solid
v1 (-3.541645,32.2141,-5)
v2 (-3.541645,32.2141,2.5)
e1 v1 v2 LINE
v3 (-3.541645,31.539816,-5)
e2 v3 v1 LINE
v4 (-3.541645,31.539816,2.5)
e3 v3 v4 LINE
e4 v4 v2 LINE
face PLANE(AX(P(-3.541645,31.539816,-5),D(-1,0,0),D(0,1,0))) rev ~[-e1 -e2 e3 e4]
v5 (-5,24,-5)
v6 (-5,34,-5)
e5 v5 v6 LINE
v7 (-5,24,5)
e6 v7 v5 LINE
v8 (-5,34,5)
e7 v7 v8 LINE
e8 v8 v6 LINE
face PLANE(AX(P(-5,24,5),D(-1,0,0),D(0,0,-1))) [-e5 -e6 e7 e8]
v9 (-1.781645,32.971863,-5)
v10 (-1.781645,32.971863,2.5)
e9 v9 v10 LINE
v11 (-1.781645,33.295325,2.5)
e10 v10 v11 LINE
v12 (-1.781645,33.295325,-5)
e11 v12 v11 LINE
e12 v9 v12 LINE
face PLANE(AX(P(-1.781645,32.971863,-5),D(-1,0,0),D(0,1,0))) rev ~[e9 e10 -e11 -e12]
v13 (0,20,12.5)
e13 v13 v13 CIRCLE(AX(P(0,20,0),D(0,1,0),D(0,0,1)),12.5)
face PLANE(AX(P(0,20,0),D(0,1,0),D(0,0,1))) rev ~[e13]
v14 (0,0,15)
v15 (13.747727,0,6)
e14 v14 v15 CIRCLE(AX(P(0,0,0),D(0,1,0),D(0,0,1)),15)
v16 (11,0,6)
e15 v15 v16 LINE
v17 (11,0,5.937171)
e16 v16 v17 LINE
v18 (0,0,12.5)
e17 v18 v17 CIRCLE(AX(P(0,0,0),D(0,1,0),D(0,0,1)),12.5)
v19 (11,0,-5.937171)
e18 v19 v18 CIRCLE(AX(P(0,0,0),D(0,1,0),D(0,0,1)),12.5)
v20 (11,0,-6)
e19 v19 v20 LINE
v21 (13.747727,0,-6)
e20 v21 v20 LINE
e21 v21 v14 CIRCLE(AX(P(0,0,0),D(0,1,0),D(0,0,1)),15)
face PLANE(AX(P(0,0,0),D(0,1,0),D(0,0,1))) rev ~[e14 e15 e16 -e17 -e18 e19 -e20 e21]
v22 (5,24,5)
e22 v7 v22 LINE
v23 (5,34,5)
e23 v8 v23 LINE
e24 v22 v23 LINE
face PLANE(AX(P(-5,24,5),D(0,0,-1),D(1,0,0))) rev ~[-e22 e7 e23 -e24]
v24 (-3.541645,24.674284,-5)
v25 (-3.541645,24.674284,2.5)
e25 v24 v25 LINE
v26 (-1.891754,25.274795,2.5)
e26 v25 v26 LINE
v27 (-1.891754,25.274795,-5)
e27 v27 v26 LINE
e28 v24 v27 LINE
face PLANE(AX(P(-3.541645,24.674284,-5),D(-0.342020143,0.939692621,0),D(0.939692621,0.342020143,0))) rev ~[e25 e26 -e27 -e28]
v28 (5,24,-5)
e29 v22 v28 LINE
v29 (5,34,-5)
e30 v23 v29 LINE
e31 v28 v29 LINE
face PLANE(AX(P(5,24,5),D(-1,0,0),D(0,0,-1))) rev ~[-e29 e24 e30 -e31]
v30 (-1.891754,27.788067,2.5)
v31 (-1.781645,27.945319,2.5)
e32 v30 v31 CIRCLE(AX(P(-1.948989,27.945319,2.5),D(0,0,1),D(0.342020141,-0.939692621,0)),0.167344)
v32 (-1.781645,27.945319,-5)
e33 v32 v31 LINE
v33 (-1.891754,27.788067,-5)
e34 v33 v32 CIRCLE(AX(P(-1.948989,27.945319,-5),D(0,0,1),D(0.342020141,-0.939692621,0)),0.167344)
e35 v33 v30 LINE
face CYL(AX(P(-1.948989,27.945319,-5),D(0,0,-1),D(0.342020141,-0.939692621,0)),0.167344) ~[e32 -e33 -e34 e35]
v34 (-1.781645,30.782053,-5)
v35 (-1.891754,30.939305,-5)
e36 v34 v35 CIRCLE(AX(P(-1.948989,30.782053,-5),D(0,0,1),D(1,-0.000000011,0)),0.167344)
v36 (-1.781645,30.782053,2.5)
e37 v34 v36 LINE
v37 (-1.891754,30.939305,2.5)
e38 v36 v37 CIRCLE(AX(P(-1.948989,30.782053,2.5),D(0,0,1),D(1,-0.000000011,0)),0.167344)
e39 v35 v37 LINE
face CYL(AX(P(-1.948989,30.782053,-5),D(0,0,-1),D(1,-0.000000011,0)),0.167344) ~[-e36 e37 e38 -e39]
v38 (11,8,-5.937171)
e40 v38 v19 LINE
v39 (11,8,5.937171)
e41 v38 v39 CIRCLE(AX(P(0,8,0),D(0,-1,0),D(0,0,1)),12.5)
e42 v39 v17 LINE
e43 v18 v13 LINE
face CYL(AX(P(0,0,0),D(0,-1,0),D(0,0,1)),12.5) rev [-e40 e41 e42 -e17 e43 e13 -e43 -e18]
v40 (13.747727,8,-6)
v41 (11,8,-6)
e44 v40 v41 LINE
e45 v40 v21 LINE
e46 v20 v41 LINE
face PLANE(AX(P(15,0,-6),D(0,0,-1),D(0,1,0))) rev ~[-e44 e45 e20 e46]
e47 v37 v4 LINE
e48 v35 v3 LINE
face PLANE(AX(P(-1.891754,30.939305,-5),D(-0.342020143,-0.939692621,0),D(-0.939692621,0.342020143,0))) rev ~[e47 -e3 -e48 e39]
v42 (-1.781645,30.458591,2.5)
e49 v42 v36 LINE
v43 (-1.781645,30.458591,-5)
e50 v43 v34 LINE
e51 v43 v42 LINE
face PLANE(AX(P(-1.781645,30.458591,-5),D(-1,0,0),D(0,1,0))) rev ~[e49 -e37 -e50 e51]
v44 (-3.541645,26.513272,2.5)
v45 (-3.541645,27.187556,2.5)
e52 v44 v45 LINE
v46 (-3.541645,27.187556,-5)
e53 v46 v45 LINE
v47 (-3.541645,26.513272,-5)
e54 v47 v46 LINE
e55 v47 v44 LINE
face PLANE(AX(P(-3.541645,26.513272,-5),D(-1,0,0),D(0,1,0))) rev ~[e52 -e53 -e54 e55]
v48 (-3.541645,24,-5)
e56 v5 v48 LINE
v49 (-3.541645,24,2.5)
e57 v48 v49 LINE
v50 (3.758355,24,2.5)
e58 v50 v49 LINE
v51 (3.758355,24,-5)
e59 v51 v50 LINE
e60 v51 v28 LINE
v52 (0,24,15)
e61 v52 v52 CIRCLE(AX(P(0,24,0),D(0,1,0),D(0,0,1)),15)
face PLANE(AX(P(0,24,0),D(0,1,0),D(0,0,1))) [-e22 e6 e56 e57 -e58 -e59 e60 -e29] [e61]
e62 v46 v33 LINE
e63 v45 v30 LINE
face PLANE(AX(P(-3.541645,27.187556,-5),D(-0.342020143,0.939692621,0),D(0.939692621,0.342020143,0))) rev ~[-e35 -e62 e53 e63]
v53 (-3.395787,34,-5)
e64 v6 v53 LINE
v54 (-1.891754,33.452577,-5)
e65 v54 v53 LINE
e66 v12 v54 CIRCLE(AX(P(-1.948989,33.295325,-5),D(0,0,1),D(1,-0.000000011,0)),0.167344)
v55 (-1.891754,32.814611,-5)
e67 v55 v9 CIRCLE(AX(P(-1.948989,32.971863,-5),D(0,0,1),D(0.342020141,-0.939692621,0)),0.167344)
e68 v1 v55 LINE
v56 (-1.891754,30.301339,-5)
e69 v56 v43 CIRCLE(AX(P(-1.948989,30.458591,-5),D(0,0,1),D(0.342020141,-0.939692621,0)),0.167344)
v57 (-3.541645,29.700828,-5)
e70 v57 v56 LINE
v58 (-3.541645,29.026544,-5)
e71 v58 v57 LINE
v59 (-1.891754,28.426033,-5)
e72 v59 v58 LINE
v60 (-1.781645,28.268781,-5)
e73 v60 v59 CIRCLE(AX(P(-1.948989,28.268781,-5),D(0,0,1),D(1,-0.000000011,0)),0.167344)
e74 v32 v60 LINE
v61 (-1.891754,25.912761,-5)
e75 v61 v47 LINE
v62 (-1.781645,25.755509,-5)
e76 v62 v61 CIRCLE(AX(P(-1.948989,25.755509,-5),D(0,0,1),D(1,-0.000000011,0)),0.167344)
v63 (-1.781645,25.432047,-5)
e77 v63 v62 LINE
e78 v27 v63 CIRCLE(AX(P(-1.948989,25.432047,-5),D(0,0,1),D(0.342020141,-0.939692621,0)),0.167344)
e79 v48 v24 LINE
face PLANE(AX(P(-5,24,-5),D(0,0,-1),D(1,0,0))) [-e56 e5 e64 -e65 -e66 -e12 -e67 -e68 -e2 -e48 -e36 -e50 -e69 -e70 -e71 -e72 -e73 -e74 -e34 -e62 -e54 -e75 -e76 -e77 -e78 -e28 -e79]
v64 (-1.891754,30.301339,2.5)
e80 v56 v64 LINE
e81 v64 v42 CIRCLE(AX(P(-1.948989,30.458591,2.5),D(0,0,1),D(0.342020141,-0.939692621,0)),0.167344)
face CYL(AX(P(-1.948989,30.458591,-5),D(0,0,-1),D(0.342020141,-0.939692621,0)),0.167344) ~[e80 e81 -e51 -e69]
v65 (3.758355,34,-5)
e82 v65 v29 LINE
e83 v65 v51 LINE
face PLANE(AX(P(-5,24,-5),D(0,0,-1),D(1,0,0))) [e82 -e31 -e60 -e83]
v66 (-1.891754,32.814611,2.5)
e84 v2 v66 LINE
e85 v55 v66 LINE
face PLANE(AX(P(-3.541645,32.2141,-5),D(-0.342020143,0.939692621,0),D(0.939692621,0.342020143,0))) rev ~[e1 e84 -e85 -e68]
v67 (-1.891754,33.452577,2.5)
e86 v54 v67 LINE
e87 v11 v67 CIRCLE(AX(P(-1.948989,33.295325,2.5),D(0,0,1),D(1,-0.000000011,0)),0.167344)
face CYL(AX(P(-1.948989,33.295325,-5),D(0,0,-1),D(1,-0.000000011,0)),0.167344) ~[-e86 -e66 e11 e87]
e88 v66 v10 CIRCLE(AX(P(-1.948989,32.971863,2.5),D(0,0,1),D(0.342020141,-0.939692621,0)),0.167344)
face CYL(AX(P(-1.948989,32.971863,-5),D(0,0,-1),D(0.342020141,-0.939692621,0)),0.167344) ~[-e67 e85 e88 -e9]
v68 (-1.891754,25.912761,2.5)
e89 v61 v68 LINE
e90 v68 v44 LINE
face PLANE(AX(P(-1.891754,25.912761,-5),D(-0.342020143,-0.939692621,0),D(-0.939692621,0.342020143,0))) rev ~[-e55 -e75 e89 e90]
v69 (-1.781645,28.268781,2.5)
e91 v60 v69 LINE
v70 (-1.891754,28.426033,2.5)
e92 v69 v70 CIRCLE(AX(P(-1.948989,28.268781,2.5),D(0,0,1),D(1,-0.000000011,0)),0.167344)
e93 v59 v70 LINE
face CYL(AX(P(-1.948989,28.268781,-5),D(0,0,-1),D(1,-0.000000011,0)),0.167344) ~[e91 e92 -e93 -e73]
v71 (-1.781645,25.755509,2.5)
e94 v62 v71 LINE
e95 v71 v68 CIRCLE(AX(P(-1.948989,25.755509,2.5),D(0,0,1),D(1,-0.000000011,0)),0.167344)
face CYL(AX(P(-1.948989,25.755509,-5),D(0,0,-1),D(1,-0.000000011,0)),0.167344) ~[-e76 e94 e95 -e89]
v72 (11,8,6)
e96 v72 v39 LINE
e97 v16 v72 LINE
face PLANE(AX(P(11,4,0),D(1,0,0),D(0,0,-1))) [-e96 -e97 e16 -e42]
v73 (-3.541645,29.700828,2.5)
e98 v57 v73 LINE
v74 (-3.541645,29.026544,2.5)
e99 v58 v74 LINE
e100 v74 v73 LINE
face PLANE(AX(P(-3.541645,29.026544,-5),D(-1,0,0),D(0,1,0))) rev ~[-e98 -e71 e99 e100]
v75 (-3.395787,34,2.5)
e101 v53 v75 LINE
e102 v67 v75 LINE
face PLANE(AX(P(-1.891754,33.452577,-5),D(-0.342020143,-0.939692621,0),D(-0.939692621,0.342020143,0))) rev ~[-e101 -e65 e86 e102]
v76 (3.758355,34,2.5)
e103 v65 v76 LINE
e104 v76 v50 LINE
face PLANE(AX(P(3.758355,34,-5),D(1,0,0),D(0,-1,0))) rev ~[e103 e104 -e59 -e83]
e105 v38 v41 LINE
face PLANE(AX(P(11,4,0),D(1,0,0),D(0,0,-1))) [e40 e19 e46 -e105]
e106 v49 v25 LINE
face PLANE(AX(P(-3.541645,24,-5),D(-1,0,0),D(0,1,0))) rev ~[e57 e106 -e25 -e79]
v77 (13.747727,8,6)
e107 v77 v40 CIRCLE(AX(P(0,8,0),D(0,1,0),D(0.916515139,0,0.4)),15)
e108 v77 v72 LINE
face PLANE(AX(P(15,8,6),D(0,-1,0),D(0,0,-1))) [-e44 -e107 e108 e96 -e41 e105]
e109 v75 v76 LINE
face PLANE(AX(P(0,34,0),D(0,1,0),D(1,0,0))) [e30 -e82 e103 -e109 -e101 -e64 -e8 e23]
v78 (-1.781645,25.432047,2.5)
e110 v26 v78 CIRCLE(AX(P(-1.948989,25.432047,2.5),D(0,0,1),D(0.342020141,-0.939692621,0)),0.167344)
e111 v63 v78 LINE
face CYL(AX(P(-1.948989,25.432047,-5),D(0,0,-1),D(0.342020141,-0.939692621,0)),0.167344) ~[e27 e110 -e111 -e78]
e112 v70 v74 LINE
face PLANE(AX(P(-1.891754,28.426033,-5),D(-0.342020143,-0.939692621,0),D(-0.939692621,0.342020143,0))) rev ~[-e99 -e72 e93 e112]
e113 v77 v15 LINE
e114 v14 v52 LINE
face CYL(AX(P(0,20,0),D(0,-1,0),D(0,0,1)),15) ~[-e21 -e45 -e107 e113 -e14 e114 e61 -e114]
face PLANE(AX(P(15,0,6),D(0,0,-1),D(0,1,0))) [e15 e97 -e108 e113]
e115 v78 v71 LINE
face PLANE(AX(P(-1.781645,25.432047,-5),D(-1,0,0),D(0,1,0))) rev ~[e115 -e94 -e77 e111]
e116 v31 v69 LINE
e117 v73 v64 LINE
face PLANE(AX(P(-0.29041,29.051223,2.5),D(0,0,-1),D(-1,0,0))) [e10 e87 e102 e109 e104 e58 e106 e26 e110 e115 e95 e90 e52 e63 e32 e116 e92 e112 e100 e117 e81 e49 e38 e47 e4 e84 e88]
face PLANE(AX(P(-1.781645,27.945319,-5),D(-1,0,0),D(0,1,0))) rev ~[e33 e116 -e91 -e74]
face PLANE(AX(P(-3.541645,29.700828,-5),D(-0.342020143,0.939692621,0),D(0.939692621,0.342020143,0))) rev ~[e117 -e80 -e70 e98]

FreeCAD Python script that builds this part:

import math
import FreeCAD as App
import Part
import Sketcher

V = App.Vector
Q = App.Units.Quantity

doc = App.newDocument("Part")
params = doc.addObject("Spreadsheet::Sheet", "Params")
for row, (alias, value) in enumerate([
    ("sketch1_diameter", "30 mm"),
    ("sketch1_diameter2", "25 mm"),
    ("pad1_length", "20 mm"),
    ("sketch2_diameter", "30 mm"),
    ("pad2_length", "4 mm"),
    ("sketch3_width", "8 mm"),
    ("sketch3_height", "12 mm"),
    ("pocket1_length", "4 mm"),
    ("sketch4_width", "10 mm"),
    ("pad3_length", "10 mm"),
    ("sketch5_height", "10 mm"),
    ("sketch5_width", "7.3 mm"),
    ("pocket2_length", "7.5 mm"),
], start=1):
    params.set(f"A{row}", alias)
    params.set(f"B{row}", "=" + value)
    params.setAlias(f"B{row}", alias)

body = doc.addObject("PartDesign::Body", "Body")

# Sketch on XZ plane
sketch1 = body.newObject("Sketcher::SketchObject", "Sketch")
sketch1.AttachmentSupport = (doc.getObject("XZ_Plane"), [""])
sketch1.MapMode = "FlatFace"
sketch1.addGeometry(Part.Circle(V(0, 0, 0), V(0, 0, 1), 15), False)
sketch1.addGeometry(Part.Circle(V(0, 0, 0), V(0, 0, 1), 12), False)
sketch1.addConstraint(Sketcher.Constraint("Coincident", 0, 3, -1, 1))
sketch1.addConstraint(Sketcher.Constraint("Coincident", 1, 3, -1, 1))
sketch1.addConstraint(Sketcher.Constraint("Diameter", 0, Q("30 mm")))
sketch1.addConstraint(Sketcher.Constraint("Diameter", 1, Q("25 mm")))
sketch1.setExpression("Constraints[2]", "Params.sketch1_diameter")
sketch1.setExpression("Constraints[3]", "Params.sketch1_diameter2")
pad1 = body.newObject("PartDesign::Pad", "Pad")
pad1.Profile = sketch1
pad1.setExpression("Length", "Params.pad1_length")
pad1.Reversed = True

# Sketch on XZ plane
sketch2 = body.newObject("Sketcher::SketchObject", "Sketch001")
sketch2.AttachmentSupport = (doc.getObject("XZ_Plane"), [""])
sketch2.MapMode = "FlatFace"
sketch2.AttachmentOffset = App.Placement(V(0, 0, -20), App.Rotation())
sketch2.addGeometry(Part.Circle(V(0, 0, 0), V(0, 0, 1), 15), False)
sketch2.addConstraint(Sketcher.Constraint("Coincident", 0, 3, -1, 1))
sketch2.addConstraint(Sketcher.Constraint("Diameter", 0, Q("30 mm")))
sketch2.setExpression("Constraints[1]", "Params.sketch2_diameter")
pad2 = body.newObject("PartDesign::Pad", "Pad001")
pad2.Profile = sketch2
pad2.setExpression("Length", "Params.pad2_length")
pad2.Reversed = True

# Sketch on YZ plane
sketch3 = body.newObject("Sketcher::SketchObject", "Sketch002")
sketch3.AttachmentSupport = (doc.getObject("YZ_Plane"), [""])
sketch3.MapMode = "FlatFace"
sketch3.AttachmentOffset = App.Placement(V(0, 0, 15), App.Rotation())
sketch3.addGeometry(Part.LineSegment(V(8, 6, 0), V(0, 6, 0)), False)
sketch3.addGeometry(Part.LineSegment(V(0, 6, 0), V(0, -6, 0)), False)
sketch3.addGeometry(Part.LineSegment(V(0, -6, 0), V(8, -6, 0)), False)
sketch3.addGeometry(Part.LineSegment(V(8, -6, 0), V(8, 6, 0)), False)
sketch3.addConstraint(Sketcher.Constraint("Coincident", 0, 2, 1, 1))
sketch3.addConstraint(Sketcher.Constraint("Coincident", 1, 2, 2, 1))
sketch3.addConstraint(Sketcher.Constraint("Coincident", 2, 2, 3, 1))
sketch3.addConstraint(Sketcher.Constraint("Coincident", 3, 2, 0, 1))
sketch3.addConstraint(Sketcher.Constraint("Horizontal", 0))
sketch3.addConstraint(Sketcher.Constraint("Vertical", 1))
sketch3.addConstraint(Sketcher.Constraint("Horizontal", 2))
sketch3.addConstraint(Sketcher.Constraint("Vertical", 3))
sketch3.addConstraint(Sketcher.Constraint("Symmetric", 0, 2, 1, 2, -1, 1))
sketch3.addConstraint(Sketcher.Constraint("DistanceX", 0, 2, 0, 1, Q("8 mm")))
sketch3.addConstraint(Sketcher.Constraint("DistanceY", 1, 2, 1, 1, Q("12 mm")))
sketch3.setExpression("Constraints[9]", "Params.sketch3_width")
sketch3.setExpression("Constraints[10]", "Params.sketch3_height")
pocket1 = body.newObject("PartDesign::Pocket", "Pocket")
pocket1.Profile = sketch3
pocket1.setExpression("Length", "Params.pocket1_length")

# Sketch on XZ plane
sketch4 = body.newObject("Sketcher::SketchObject", "Sketch003")
sketch4.AttachmentSupport = (doc.getObject("XZ_Plane"), [""])
sketch4.MapMode = "FlatFace"
sketch4.AttachmentOffset = App.Placement(V(0, 0, -24), App.Rotation())
sketch4.addGeometry(Part.LineSegment(V(-5, -5, 0), V(-5, 5, 0)), False)
sketch4.addGeometry(Part.LineSegment(V(-5, 5, 0), V(5, 5, 0)), False)
sketch4.addGeometry(Part.LineSegment(V(5, 5, 0), V(5, -5, 0)), False)
sketch4.addGeometry(Part.LineSegment(V(5, -5, 0), V(-5, -5, 0)), False)
sketch4.addConstraint(Sketcher.Constraint("Coincident", 0, 2, 1, 1))
sketch4.addConstraint(Sketcher.Constraint("Coincident", 1, 2, 2, 1))
sketch4.addConstraint(Sketcher.Constraint("Coincident", 2, 2, 3, 1))
sketch4.addConstraint(Sketcher.Constraint("Coincident", 3, 2, 0, 1))
sketch4.addConstraint(Sketcher.Constraint("Vertical", 0))
sketch4.addConstraint(Sketcher.Constraint("Horizontal", 1))
sketch4.addConstraint(Sketcher.Constraint("Vertical", 2))
sketch4.addConstraint(Sketcher.Constraint("Horizontal", 3))
sketch4.addConstraint(Sketcher.Constraint("Symmetric", 0, 2, 2, 2, -1, 1))
sketch4.addConstraint(Sketcher.Constraint("Equal", 3, 0))
sketch4.addConstraint(Sketcher.Constraint("DistanceX", 1, 1, 1, 2, Q("10 mm")))
sketch4.setExpression("Constraints[10]", "Params.sketch4_width")
pad3 = body.newObject("PartDesign::Pad", "Pad002")
pad3.Profile = sketch4
pad3.setExpression("Length", "Params.pad3_length")
pad3.Reversed = True

# Sketch on XY plane
sketch5 = body.newObject("Sketcher::SketchObject", "Sketch004")
sketch5.AttachmentSupport = (doc.getObject("XY_Plane"), [""])
sketch5.MapMode = "FlatFace"
sketch5.AttachmentOffset = App.Placement(V(0, 0, -5), App.Rotation())
sketch5.addGeometry(Part.LineSegment(V(3.76, 34, 0), V(3.76, 24, 0)), False)
sketch5.addGeometry(Part.LineSegment(V(3.76, 24, 0), V(-3.54, 24, 0)), False)
sketch5.addGeometry(Part.LineSegment(V(-3.54, 24, 0), V(-3.54, 24.67, 0)), False)
sketch5.addGeometry(Part.LineSegment(V(-3.54, 24.67, 0), V(-1.89, 25.27, 0)), False)
sketch5.addGeometry(Part.ArcOfCircle(Part.Circle(V(-1.95, 25.43, 0), V(0, 0, 1), 0.17), math.radians(-70), math.radians(0)), False)
sketch5.addGeometry(Part.LineSegment(V(-1.78, 25.43, 0), V(-1.78, 25.76, 0)), False)
sketch5.addGeometry(Part.ArcOfCircle(Part.Circle(V(-1.95, 25.76, 0), V(0, 0, 1), 0.17), math.radians(0), math.radians(70)), False)
sketch5.addGeometry(Part.LineSegment(V(-1.89, 25.91, 0), V(-3.54, 26.51, 0)), False)
sketch5.addGeometry(Part.LineSegment(V(-3.54, 26.51, 0), V(-3.54, 27.19, 0)), False)
sketch5.addGeometry(Part.LineSegment(V(-3.54, 27.19, 0), V(-1.89, 27.79, 0)), False)
sketch5.addGeometry(Part.ArcOfCircle(Part.Circle(V(-1.95, 27.95, 0), V(0, 0, 1), 0.17), math.radians(-70), math.radians(0)), False)
sketch5.addGeometry(Part.LineSegment(V(-1.78, 27.95, 0), V(-1.78, 28.27, 0)), False)
sketch5.addGeometry(Part.ArcOfCircle(Part.Circle(V(-1.95, 28.27, 0), V(0, 0, 1), 0.17), math.radians(0), math.radians(70)), False)
sketch5.addGeometry(Part.LineSegment(V(-1.89, 28.43, 0), V(-3.54, 29.03, 0)), False)
sketch5.addGeometry(Part.LineSegment(V(-3.54, 29.03, 0), V(-3.54, 29.7, 0)), False)
sketch5.addGeometry(Part.LineSegment(V(-3.54, 29.7, 0), V(-1.89, 30.3, 0)), False)
sketch5.addGeometry(Part.ArcOfCircle(Part.Circle(V(-1.95, 30.46, 0), V(0, 0, 1), 0.17), math.radians(-70), math.radians(0)), False)
sketch5.addGeometry(Part.LineSegment(V(-1.78, 30.46, 0), V(-1.78, 30.78, 0)), False)
sketch5.addGeometry(Part.ArcOfCircle(Part.Circle(V(-1.95, 30.78, 0), V(0, 0, 1), 0.17), math.radians(0), math.radians(70)), False)
sketch5.addGeometry(Part.LineSegment(V(-1.89, 30.94, 0), V(-3.54, 31.54, 0)), False)
sketch5.addGeometry(Part.LineSegment(V(-3.54, 31.54, 0), V(-3.54, 32.21, 0)), False)
sketch5.addGeometry(Part.LineSegment(V(-3.54, 32.21, 0), V(-1.89, 32.81, 0)), False)
sketch5.addGeometry(Part.ArcOfCircle(Part.Circle(V(-1.95, 32.97, 0), V(0, 0, 1), 0.17), math.radians(-70), math.radians(0)), False)
sketch5.addGeometry(Part.LineSegment(V(-1.78, 32.97, 0), V(-1.78, 33.3, 0)), False)
sketch5.addGeometry(Part.ArcOfCircle(Part.Circle(V(-1.95, 33.3, 0), V(0, 0, 1), 0.17), math.radians(0), math.radians(70)), False)
sketch5.addGeometry(Part.LineSegment(V(-1.89, 33.45, 0), V(-3.4, 34, 0)), False)
sketch5.addGeometry(Part.LineSegment(V(-3.4, 34, 0), V(3.76, 34, 0)), False)
sketch5.addConstraint(Sketcher.Constraint("Coincident", 0, 2, 1, 1))
sketch5.addConstraint(Sketcher.Constraint("Coincident", 1, 2, 2, 1))
sketch5.addConstraint(Sketcher.Constraint("Coincident", 2, 2, 3, 1))
sketch5.addConstraint(Sketcher.Constraint("Tangent", 3, 2, 4, 1))
sketch5.addConstraint(Sketcher.Constraint("Tangent", 4, 2, 5, 1))
sketch5.addConstraint(Sketcher.Constraint("Tangent", 5, 2, 6, 1))
sketch5.addConstraint(Sketcher.Constraint("Tangent", 6, 2, 7, 1))
sketch5.addConstraint(Sketcher.Constraint("Coincident", 7, 2, 8, 1))
sketch5.addConstraint(Sketcher.Constraint("Coincident", 8, 2, 9, 1))
sketch5.addConstraint(Sketcher.Constraint("Tangent", 9, 2, 10, 1))
sketch5.addConstraint(Sketcher.Constraint("Tangent", 10, 2, 11, 1))
sketch5.addConstraint(Sketcher.Constraint("Tangent", 11, 2, 12, 1))
sketch5.addConstraint(Sketcher.Constraint("Tangent", 12, 2, 13, 1))
sketch5.addConstraint(Sketcher.Constraint("Coincident", 13, 2, 14, 1))
sketch5.addConstraint(Sketcher.Constraint("Coincident", 14, 2, 15, 1))
sketch5.addConstraint(Sketcher.Constraint("Tangent", 15, 2, 16, 1))
sketch5.addConstraint(Sketcher.Constraint("Tangent", 16, 2, 17, 1))
sketch5.addConstraint(Sketcher.Constraint("Tangent", 17, 2, 18, 1))
sketch5.addConstraint(Sketcher.Constraint("Tangent", 18, 2, 19, 1))
sketch5.addConstraint(Sketcher.Constraint("Coincident", 19, 2, 20, 1))
sketch5.addConstraint(Sketcher.Constraint("Coincident", 20, 2, 21, 1))
sketch5.addConstraint(Sketcher.Constraint("Tangent", 21, 2, 22, 1))
sketch5.addConstraint(Sketcher.Constraint("Tangent", 22, 2, 23, 1))
sketch5.addConstraint(Sketcher.Constraint("Tangent", 23, 2, 24, 1))
sketch5.addConstraint(Sketcher.Constraint("Tangent", 24, 2, 25, 1))
sketch5.addConstraint(Sketcher.Constraint("Coincident", 25, 2, 26, 1))
sketch5.addConstraint(Sketcher.Constraint("Coincident", 26, 2, 0, 1))
sketch5.addConstraint(Sketcher.Constraint("Vertical", 0))
sketch5.addConstraint(Sketcher.Constraint("Horizontal", 1))
sketch5.addConstraint(Sketcher.Constraint("Vertical", 2))
sketch5.addConstraint(Sketcher.Constraint("Vertical", 5))
sketch5.addConstraint(Sketcher.Constraint("Vertical", 8))
sketch5.addConstraint(Sketcher.Constraint("Vertical", 11))
sketch5.addConstraint(Sketcher.Constraint("Vertical", 14))
sketch5.addConstraint(Sketcher.Constraint("Vertical", 17))
sketch5.addConstraint(Sketcher.Constraint("Vertical", 20))
sketch5.addConstraint(Sketcher.Constraint("Vertical", 23))
sketch5.addConstraint(Sketcher.Constraint("Horizontal", 26))
sketch5.addConstraint(Sketcher.Constraint("Equal", 4, 6))
sketch5.addConstraint(Sketcher.Constraint("Equal", 6, 10))
sketch5.addConstraint(Sketcher.Constraint("Equal", 10, 12))
sketch5.addConstraint(Sketcher.Constraint("Equal", 12, 16))
sketch5.addConstraint(Sketcher.Constraint("Equal", 16, 18))
sketch5.addConstraint(Sketcher.Constraint("Equal", 18, 22))
sketch5.addConstraint(Sketcher.Constraint("Equal", 22, 24))
sketch5.addConstraint(Sketcher.Constraint("Parallel", 3, 9))
sketch5.addConstraint(Sketcher.Constraint("Parallel", 7, 13))
sketch5.addConstraint(Sketcher.Constraint("Parallel", 9, 15))
sketch5.addConstraint(Sketcher.Constraint("Parallel", 13, 19))
sketch5.addConstraint(Sketcher.Constraint("Parallel", 15, 21))
sketch5.addConstraint(Sketcher.Constraint("Parallel", 19, 25))
sketch5.addConstraint(Sketcher.Constraint("Vertical", 6, 3, 10, 3))
sketch5.addConstraint(Sketcher.Constraint("Vertical", 12, 3, 16, 3))
sketch5.addConstraint(Sketcher.Constraint("Vertical", 18, 3, 22, 3))
sketch5.addConstraint(Sketcher.Constraint("Vertical", 3, 2, 6, 2))
sketch5.addConstraint(Sketcher.Constraint("Vertical", 2, 2, 7, 2))
sketch5.addConstraint(Sketcher.Constraint("Vertical", 8, 2, 13, 2))
sketch5.addConstraint(Sketcher.Constraint("Vertical", 14, 2, 19, 2))
sketch5.addConstraint(Sketcher.Constraint("Equal", 2, 8))
sketch5.addConstraint(Sketcher.Constraint("Equal", 5, 11))
sketch5.addConstraint(Sketcher.Constraint("Equal", 8, 14))
sketch5.addConstraint(Sketcher.Constraint("Equal", 11, 17))
sketch5.addConstraint(Sketcher.Constraint("Equal", 14, 20))
sketch5.addConstraint(Sketcher.Constraint("Equal", 17, 23))
sketch5.addConstraint(Sketcher.Constraint("DistanceY", 0, 2, 0, 1, Q("10 mm")))
sketch5.addConstraint(Sketcher.Constraint("Angle", 3, Q("20 deg")))
sketch5.addConstraint(Sketcher.Constraint("DistanceX", 1, 2, 1, 1, Q("7.3 mm")))
sketch5.addConstraint(Sketcher.Constraint("DistanceY", -1, 1, 0, 2, Q("24 mm")))
sketch5.addConstraint(Sketcher.Constraint("DistanceX", 2, 2, 4, 2, Q("1.76 mm")))
sketch5.addConstraint(Sketcher.Constraint("Radius", 4, Q("0.167344 mm")))
sketch5.addConstraint(Sketcher.Constraint("DistanceX", 26, 1, 26, 2, Q("7.154142 mm")))
sketch5.addConstraint(Sketcher.Constraint("DistanceY", -1, 1, 20, 2, Q("32.2141 mm")))
sketch5.addConstraint(Sketcher.Constraint("DistanceX", 4, 3, -1, 1, Q("1.948989 mm")))
sketch5.setExpression("Constraints[64]", "Params.sketch5_height")
sketch5.setExpression("Constraints[66]", "Params.sketch5_width")
pocket2 = body.newObject("PartDesign::Pocket", "Pocket001")
pocket2.Profile = sketch5
pocket2.setExpression("Length", "Params.pocket2_length")
pocket2.Reversed = True

doc.recompute()
